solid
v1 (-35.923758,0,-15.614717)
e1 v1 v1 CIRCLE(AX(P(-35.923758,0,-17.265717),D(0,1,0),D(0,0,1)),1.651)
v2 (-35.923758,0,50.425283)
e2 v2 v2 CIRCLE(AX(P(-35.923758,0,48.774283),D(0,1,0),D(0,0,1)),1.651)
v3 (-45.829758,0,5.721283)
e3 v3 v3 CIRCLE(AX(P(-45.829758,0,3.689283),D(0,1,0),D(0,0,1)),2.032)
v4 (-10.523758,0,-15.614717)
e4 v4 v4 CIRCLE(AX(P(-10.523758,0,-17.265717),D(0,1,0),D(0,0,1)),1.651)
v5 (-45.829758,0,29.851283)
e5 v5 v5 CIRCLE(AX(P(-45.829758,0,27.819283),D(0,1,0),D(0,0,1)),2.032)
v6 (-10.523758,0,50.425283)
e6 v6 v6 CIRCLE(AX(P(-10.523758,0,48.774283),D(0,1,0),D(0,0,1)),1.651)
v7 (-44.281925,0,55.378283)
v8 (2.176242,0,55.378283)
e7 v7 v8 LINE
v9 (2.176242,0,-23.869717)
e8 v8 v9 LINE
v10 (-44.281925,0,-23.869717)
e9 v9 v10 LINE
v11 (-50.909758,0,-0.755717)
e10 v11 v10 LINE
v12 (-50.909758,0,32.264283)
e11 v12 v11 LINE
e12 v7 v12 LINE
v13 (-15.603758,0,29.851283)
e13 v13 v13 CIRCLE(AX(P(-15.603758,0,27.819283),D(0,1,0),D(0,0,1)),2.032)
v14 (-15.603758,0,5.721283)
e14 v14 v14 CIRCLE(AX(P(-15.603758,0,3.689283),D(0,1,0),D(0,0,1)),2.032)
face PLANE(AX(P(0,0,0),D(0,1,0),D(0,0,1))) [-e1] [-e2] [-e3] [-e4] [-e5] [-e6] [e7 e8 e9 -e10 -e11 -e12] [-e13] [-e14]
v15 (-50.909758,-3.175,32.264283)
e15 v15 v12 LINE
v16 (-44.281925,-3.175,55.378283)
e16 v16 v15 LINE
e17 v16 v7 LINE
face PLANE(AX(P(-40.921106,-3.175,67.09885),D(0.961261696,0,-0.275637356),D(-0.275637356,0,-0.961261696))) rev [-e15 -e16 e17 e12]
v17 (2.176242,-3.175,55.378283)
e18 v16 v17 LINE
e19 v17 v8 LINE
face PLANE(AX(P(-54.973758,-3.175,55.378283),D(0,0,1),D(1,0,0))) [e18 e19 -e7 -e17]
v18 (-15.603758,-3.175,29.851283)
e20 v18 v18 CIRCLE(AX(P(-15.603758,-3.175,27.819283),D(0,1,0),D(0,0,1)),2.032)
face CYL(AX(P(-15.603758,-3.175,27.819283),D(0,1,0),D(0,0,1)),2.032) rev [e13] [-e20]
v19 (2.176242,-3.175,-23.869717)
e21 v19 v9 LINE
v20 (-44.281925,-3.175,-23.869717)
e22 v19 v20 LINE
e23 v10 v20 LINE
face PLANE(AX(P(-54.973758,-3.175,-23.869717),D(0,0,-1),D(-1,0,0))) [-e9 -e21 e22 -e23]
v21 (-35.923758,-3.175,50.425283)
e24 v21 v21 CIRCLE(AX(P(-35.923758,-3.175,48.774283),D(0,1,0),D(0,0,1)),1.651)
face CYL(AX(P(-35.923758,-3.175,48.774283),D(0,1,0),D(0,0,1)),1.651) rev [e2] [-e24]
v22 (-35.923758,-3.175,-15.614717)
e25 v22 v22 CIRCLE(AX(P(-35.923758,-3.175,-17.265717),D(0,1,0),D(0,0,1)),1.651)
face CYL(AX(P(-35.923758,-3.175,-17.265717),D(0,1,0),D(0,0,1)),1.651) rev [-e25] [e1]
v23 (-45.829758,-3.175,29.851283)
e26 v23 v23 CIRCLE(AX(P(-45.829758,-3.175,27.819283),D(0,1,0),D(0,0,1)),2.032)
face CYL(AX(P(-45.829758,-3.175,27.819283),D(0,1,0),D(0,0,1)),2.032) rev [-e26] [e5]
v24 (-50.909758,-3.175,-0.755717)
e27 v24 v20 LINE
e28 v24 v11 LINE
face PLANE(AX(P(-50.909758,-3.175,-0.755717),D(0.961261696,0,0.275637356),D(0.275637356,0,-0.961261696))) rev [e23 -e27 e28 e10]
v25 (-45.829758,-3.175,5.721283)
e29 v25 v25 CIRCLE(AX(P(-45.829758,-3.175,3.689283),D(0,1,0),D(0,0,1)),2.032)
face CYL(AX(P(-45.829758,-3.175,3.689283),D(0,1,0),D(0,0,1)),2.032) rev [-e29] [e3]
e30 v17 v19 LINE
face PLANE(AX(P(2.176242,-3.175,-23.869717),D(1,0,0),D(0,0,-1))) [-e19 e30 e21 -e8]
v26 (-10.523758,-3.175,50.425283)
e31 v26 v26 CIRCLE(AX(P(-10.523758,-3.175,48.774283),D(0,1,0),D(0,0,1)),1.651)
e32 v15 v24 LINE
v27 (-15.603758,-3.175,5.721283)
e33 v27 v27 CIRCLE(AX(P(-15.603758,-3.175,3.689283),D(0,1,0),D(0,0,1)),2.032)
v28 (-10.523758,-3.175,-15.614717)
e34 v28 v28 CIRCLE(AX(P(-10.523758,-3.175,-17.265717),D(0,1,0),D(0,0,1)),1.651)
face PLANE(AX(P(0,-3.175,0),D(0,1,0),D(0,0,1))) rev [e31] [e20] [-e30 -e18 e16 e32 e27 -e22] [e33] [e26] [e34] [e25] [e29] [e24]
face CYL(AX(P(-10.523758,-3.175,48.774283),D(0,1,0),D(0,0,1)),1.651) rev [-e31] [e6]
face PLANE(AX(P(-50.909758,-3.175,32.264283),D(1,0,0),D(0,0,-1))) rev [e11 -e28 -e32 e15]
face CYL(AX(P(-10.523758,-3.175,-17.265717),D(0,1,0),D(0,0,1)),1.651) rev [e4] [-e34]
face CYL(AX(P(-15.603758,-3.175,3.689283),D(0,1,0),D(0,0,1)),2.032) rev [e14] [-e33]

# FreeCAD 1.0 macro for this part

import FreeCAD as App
import Part
import Sketcher
Q = App.Units.Quantity


def add_polygon(sketch, points):
    """Adds a closed chain of lines whose ends are joined by coincident constraints."""
    first, n = sketch.GeometryCount, len(points)
    for a, b in zip(points, points[1:] + points[:1]):
        sketch.addGeometry(Part.LineSegment(App.Vector(*a, 0), App.Vector(*b, 0)), False)
    for i in range(n):
        sketch.addConstraint(Sketcher.Constraint("Coincident", first + i, 2, first + (i + 1) % n, 1))

doc = App.newDocument("Part")
body = doc.addObject("PartDesign::Body", "Body")

# Sketch on XZ plane
sketch1 = body.newObject("Sketcher::SketchObject", "Sketch")
sketch1.AttachmentSupport = (doc.getObject("XZ_Plane"), [""])
sketch1.MapMode = "FlatFace"
add_polygon(sketch1, [(-55, -24), (-55, 55), (2, 55), (2, -24)])  # lines 0-3
sketch1.addConstraint(Sketcher.Constraint("Vertical", 0))
sketch1.addConstraint(Sketcher.Constraint("Horizontal", 1))
sketch1.addConstraint(Sketcher.Constraint("Vertical", 2))
sketch1.addConstraint(Sketcher.Constraint("Horizontal", 3))
sketch1.addConstraint(Sketcher.Constraint("DistanceX", 1, 1, 1, 2, Q("2.25 in")))
sketch1.addConstraint(Sketcher.Constraint("DistanceY", 0, 1, 0, 2, Q("3.12 in")))
sketch1.addConstraint(Sketcher.Constraint("DistanceX", 0, 2, -1, 1, 54.973758))
sketch1.addConstraint(Sketcher.Constraint("DistanceY", -1, 1, 0, 2, 55.378283))
pad1 = body.newObject("PartDesign::Pad", "Pad")
pad1.Profile = sketch1
pad1.Length = Q("0.125 in")

# Sketch on XZ plane
sketch2 = body.newObject("Sketcher::SketchObject", "Sketch001")
sketch2.AttachmentSupport = (doc.getObject("XZ_Plane"), [""])
sketch2.MapMode = "FlatFace"
sketch2.addGeometry(Part.Circle(App.Vector(-35.9, 48.8, 0), App.Vector(0, 0, 1), 1.7), False)
sketch2.addGeometry(Part.Circle(App.Vector(-35.9, -17.3, 0), App.Vector(0, 0, 1), 1.7), False)
sketch2.addGeometry(Part.Circle(App.Vector(-10.5, 48.8, 0), App.Vector(0, 0, 1), 1.7), False)
sketch2.addGeometry(Part.Circle(App.Vector(-10.5, -17.3, 0), App.Vector(0, 0, 1), 1.7), False)
sketch2.addConstraint(Sketcher.Constraint("Equal", 0, 1))
sketch2.addConstraint(Sketcher.Constraint("Equal", 1, 2))
sketch2.addConstraint(Sketcher.Constraint("Equal", 2, 3))
sketch2.addConstraint(Sketcher.Constraint("Horizontal", 0, 3, 2, 3))
sketch2.addConstraint(Sketcher.Constraint("Horizontal", 1, 3, 3, 3))
sketch2.addConstraint(Sketcher.Constraint("Vertical", 0, 3, 1, 3))
sketch2.addConstraint(Sketcher.Constraint("Vertical", 2, 3, 3, 3))
sketch2.addConstraint(Sketcher.Constraint("Diameter", 0, Q("0.13 in")))
sketch2.addConstraint(Sketcher.Constraint("DistanceX", 0, 3, 2, 3, Q("1 in")))
sketch2.addConstraint(Sketcher.Constraint("DistanceY", 1, 3, 0, 3, Q("2.6 in")))
sketch2.addConstraint(Sketcher.Constraint("DistanceX", 0, 3, -1, 1, 35.923758))
sketch2.addConstraint(Sketcher.Constraint("DistanceY", -1, 1, 0, 3, 48.774283))
pocket1 = body.newObject("PartDesign::Pocket", "Pocket")
pocket1.Profile = sketch2
pocket1.Type = "ThroughAll"
pocket1.Reversed = True

# Sketch on XZ plane
sketch3 = body.newObject("Sketcher::SketchObject", "Sketch002")
sketch3.AttachmentSupport = (doc.getObject("XZ_Plane"), [""])
sketch3.MapMode = "FlatFace"
sketch3.addGeometry(Part.Circle(App.Vector(-45.8, 3.7, 0), App.Vector(0, 0, 1), 2), False)
sketch3.addGeometry(Part.Circle(App.Vector(-15.6, 3.7, 0), App.Vector(0, 0, 1), 2), False)
sketch3.addGeometry(Part.Circle(App.Vector(-45.8, 27.8, 0), App.Vector(0, 0, 1), 2), False)
sketch3.addGeometry(Part.Circle(App.Vector(-15.6, 27.8, 0), App.Vector(0, 0, 1), 2), False)
sketch3.addConstraint(Sketcher.Constraint("Equal", 0, 1))
sketch3.addConstraint(Sketcher.Constraint("Equal", 1, 2))
sketch3.addConstraint(Sketcher.Constraint("Equal", 2, 3))
sketch3.addConstraint(Sketcher.Constraint("Horizontal", 0, 3, 1, 3))
sketch3.addConstraint(Sketcher.Constraint("Horizontal", 2, 3, 3, 3))
sketch3.addConstraint(Sketcher.Constraint("Vertical", 0, 3, 2, 3))
sketch3.addConstraint(Sketcher.Constraint("Vertical", 1, 3, 3, 3))
sketch3.addConstraint(Sketcher.Constraint("Diameter", 0, Q("0.16 in")))
sketch3.addConstraint(Sketcher.Constraint("DistanceX", 0, 3, 1, 3, Q("1.19 in")))
sketch3.addConstraint(Sketcher.Constraint("DistanceY", 0, 3, 2, 3, Q("0.95 in")))
sketch3.addConstraint(Sketcher.Constraint("DistanceX", 0, 3, -1, 1, 45.829758))
sketch3.addConstraint(Sketcher.Constraint("DistanceY", -1, 1, 0, 3, 3.689283))
pocket2 = body.newObject("PartDesign::Pocket", "Pocket001")
pocket2.Profile = sketch3
pocket2.Type = "ThroughAll"
pocket2.Reversed = True

# Sketch on XZ plane
sketch4 = body.newObject("Sketcher::SketchObject", "Sketch003")
sketch4.AttachmentSupport = (doc.getObject("XZ_Plane"), [""])
sketch4.MapMode = "FlatFace"
add_polygon(sketch4, [(-51, 32), (-51, -1), (-41, -36), (-91, -36), (-91, 67), (-41, 67)])  # lines 0-5
sketch4.addConstraint(Sketcher.Constraint("Vertical", 0))
sketch4.addConstraint(Sketcher.Constraint("Horizontal", 2))
sketch4.addConstraint(Sketcher.Constraint("Vertical", 3))
sketch4.addConstraint(Sketcher.Constraint("Horizontal", 4))
sketch4.addConstraint(Sketcher.Constraint("Vertical", 1, 2, 4, 2))
sketch4.addConstraint(Sketcher.Constraint("Equal", 1, 5))
sketch4.addConstraint(Sketcher.Constraint("DistanceY", 0, 2, 0, 1, Q("1.3 in")))
sketch4.addConstraint(Sketcher.Constraint("Angle", 1, Q("-74 deg")))
sketch4.addConstraint(Sketcher.Constraint("Distance", 1, 36.23838))
sketch4.addConstraint(Sketcher.Constraint("DistanceX", 2, 2, 2, 1, 49.594886))
sketch4.addConstraint(Sketcher.Constraint("DistanceX", 2, 2, -1, 1, 90.515992))
sketch4.addConstraint(Sketcher.Constraint("DistanceY", -1, 1, 3, 2, 67.09885))
pocket3 = body.newObject("PartDesign::Pocket", "Pocket002")
pocket3.Profile = sketch4
pocket3.Type = "ThroughAll"
pocket3.Reversed = True

doc.recompute()
